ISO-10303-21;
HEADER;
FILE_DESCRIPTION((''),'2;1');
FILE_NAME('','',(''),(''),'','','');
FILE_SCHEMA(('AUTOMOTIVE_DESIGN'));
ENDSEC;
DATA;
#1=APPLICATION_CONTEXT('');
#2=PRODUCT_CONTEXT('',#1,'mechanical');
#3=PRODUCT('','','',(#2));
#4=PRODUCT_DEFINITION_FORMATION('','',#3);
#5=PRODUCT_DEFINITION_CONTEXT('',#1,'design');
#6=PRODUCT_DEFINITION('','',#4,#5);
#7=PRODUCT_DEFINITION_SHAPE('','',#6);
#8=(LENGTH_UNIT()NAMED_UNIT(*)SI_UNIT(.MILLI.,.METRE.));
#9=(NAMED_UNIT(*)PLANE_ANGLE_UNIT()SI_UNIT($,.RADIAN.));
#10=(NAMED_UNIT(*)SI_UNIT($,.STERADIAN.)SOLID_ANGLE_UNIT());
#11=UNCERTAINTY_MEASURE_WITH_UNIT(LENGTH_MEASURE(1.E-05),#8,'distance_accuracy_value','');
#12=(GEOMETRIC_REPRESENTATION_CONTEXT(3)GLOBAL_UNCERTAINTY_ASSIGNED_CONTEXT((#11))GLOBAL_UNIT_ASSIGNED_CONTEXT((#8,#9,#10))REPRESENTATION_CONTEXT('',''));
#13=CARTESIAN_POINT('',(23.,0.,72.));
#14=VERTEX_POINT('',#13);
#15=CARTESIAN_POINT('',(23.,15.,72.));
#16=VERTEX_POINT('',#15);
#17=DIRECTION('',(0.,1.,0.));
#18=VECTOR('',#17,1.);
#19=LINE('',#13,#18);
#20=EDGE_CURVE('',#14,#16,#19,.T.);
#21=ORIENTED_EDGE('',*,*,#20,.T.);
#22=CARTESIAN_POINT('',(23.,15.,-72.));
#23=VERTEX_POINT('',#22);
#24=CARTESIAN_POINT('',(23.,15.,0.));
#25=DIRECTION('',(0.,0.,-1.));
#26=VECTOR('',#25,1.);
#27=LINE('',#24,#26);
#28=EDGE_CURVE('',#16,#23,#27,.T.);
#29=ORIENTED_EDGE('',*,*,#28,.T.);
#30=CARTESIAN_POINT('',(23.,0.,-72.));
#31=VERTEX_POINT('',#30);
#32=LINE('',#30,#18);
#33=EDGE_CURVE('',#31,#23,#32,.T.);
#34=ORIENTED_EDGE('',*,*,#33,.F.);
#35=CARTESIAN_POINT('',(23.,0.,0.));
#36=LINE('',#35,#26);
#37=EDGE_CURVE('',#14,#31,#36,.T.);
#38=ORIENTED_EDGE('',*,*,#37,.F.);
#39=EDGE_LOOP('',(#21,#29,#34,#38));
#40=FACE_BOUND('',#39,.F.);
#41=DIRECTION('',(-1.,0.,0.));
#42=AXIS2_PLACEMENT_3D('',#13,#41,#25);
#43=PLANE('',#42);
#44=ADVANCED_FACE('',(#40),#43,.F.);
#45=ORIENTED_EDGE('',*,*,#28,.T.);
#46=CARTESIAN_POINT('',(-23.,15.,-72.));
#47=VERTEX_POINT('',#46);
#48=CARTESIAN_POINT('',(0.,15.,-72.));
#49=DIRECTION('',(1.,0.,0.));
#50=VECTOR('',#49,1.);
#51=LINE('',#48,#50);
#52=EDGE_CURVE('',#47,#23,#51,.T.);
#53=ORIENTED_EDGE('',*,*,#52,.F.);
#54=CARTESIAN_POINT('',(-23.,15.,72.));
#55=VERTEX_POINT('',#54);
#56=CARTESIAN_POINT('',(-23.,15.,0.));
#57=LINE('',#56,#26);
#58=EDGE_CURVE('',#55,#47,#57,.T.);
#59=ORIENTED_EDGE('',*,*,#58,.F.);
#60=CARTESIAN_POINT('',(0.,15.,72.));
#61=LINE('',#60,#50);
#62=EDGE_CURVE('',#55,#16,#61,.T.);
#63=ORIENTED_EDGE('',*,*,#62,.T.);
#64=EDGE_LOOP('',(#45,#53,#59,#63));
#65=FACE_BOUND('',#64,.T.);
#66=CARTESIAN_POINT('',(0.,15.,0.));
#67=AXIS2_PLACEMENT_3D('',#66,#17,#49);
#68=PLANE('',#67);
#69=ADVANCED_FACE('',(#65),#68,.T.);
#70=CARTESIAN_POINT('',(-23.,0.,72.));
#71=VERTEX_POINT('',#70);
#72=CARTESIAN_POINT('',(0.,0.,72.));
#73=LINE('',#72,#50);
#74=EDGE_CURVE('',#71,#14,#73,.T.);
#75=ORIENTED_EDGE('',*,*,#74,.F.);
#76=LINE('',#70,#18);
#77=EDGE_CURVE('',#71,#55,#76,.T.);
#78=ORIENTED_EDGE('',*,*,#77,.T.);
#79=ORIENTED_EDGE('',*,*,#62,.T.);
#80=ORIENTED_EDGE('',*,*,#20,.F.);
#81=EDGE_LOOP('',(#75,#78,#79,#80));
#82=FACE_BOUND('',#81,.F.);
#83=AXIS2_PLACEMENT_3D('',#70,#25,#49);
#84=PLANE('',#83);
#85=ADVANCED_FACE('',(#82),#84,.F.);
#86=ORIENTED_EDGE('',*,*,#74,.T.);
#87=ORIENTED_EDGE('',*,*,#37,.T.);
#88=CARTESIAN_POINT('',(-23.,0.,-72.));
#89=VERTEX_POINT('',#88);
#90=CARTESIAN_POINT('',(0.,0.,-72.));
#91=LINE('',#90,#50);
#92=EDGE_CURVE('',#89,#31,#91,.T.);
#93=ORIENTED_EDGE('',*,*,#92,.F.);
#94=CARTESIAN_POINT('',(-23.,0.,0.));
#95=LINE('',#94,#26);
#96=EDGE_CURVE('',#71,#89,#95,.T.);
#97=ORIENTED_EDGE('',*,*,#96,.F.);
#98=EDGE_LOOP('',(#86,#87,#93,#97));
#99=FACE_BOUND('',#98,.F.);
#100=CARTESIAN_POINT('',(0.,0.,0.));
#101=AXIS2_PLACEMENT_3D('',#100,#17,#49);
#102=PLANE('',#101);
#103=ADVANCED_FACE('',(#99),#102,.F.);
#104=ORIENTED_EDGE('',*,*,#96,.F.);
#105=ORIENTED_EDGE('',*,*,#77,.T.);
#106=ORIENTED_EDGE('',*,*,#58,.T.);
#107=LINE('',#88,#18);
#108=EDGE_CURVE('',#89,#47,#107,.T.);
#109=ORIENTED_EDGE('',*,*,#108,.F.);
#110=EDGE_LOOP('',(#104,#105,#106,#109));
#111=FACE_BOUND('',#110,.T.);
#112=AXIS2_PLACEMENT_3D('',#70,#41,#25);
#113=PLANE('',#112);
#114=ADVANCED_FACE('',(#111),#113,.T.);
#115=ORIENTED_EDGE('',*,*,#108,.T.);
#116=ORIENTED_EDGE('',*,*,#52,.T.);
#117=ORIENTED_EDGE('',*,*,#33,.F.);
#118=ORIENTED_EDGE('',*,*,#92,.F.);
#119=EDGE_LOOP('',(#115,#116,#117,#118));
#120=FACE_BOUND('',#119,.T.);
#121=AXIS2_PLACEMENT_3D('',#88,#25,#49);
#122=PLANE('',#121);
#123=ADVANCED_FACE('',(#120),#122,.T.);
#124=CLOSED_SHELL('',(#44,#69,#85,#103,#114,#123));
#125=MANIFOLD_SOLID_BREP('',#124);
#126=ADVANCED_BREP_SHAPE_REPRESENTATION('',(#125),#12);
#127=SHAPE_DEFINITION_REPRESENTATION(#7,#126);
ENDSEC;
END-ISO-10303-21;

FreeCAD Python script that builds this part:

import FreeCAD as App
import Part
import Sketcher
from FreeCAD import Vector


def add_polygon(sketch, points):
    """Adds a closed chain of lines whose ends are joined by coincident constraints."""
    first, n = sketch.GeometryCount, len(points)
    for a, b in zip(points, points[1:] + points[:1]):
        sketch.addGeometry(Part.LineSegment(App.Vector(*a, 0), App.Vector(*b, 0)), False)
    for i in range(n):
        sketch.addConstraint(Sketcher.Constraint("Coincident", first + i, 2, first + (i + 1) % n, 1))

doc = App.newDocument("Part")
params = doc.addObject("Spreadsheet::Sheet", "Params")
for row, (alias, value) in enumerate([
    ("sketch1_width", "46 mm"),
    ("sketch1_height", "144 mm"),
    ("pad1_length", "15 mm"),
], start=1):
    params.set(f"A{row}", alias)
    params.set(f"B{row}", "=" + value)
    params.setAlias(f"B{row}", alias)

body = doc.addObject("PartDesign::Body", "Body")

sketch1 = body.newObject("Sketcher::SketchObject", "Sketch")
sketch1.AttachmentSupport = (doc.getObject("XZ_Plane"), [""])
sketch1.MapMode = "FlatFace"
add_polygon(sketch1, [(-23, -72), (-23, 72), (23, 72), (23, -72)])
sketch1.addConstraint(Sketcher.Constraint("Vertical", 0))
sketch1.addConstraint(Sketcher.Constraint("Horizontal", 1))
sketch1.addConstraint(Sketcher.Constraint("Vertical", 2))
sketch1.addConstraint(Sketcher.Constraint("Horizontal", 3))
sketch1.addConstraint(Sketcher.Constraint("Symmetric", 0, 2, 2, 2, -1, 1))
sketch1.addConstraint(Sketcher.Constraint("DistanceX", 1, 1, 1, 2, 46.0))
sketch1.addConstraint(Sketcher.Constraint("DistanceY", 0, 1, 0, 2, 144.0))
sketch1.setExpression("Constraints[9]", "Params.sketch1_width")
sketch1.setExpression("Constraints[10]", "Params.sketch1_height")
pad1 = body.newObject("PartDesign::Pad", "Pad")
pad1.Profile = sketch1
pad1.setExpression("Length", "Params.pad1_length")
pad1.Reversed = True

doc.recompute()
